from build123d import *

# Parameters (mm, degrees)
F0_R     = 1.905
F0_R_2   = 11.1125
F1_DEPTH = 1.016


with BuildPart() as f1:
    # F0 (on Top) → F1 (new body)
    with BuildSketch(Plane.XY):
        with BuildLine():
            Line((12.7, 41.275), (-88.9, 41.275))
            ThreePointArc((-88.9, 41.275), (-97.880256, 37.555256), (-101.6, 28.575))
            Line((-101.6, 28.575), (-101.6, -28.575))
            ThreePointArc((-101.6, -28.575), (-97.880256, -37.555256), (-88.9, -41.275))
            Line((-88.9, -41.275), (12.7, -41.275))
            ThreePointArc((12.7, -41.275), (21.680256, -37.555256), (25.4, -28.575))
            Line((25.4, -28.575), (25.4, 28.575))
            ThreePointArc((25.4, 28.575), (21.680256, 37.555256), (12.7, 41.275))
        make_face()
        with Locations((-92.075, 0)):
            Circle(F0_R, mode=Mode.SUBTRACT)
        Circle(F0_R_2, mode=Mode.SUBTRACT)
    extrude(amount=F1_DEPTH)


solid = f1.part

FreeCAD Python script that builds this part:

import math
import FreeCAD as App
import Part
import Sketcher

V = App.Vector
Q = App.Units.Quantity

doc = App.newDocument("Part")
body = doc.addObject("PartDesign::Body", "Body")

# Sketch on XY plane
sketch1 = body.newObject("Sketcher::SketchObject", "Sketch")
sketch1.AttachmentSupport = (doc.getObject("XY_Plane"), [""])
sketch1.MapMode = "FlatFace"
sketch1.addGeometry(Part.LineSegment(V(12.7, 41.275, 0), V(-88.9, 41.275, 0)), False)
sketch1.addGeometry(Part.ArcOfCircle(Part.Circle(V(-88.9, 28.575, 0), V(0, 0, 1), 12.7), math.radians(90.000002), math.radians(179.999998)), False)
sketch1.addGeometry(Part.LineSegment(V(-101.6, 28.575, 0), V(-101.6, -28.575, 0)), False)
sketch1.addGeometry(Part.ArcOfCircle(Part.Circle(V(-88.9, -28.575, 0), V(0, 0, 1), 12.7), math.radians(-179.999998), math.radians(-90.000002)), False)
sketch1.addGeometry(Part.LineSegment(V(-88.9, -41.275, 0), V(12.7, -41.275, 0)), False)
sketch1.addGeometry(Part.ArcOfCircle(Part.Circle(V(12.7, -28.575, 0), V(0, 0, 1), 12.7), math.radians(-89.999998), math.radians(-0.000002)), False)
sketch1.addGeometry(Part.LineSegment(V(25.4, -28.575, 0), V(25.4, 28.575, 0)), False)
sketch1.addGeometry(Part.ArcOfCircle(Part.Circle(V(12.7, 28.575, 0), V(0, 0, 1), 12.7), math.radians(0.000002), math.radians(89.999998)), False)
sketch1.addGeometry(Part.Circle(V(-92.075, 0, 0), V(0, 0, 1), 1.905), False)
sketch1.addGeometry(Part.Circle(V(0, 0, 0), V(0, 0, 1), 11.1125), False)
sketch1.addConstraint(Sketcher.Constraint("Tangent", 0, 2, 1, 1))
sketch1.addConstraint(Sketcher.Constraint("Tangent", 1, 2, 2, 1))
sketch1.addConstraint(Sketcher.Constraint("Tangent", 2, 2, 3, 1))
sketch1.addConstraint(Sketcher.Constraint("Tangent", 3, 2, 4, 1))
sketch1.addConstraint(Sketcher.Constraint("Tangent", 4, 2, 5, 1))
sketch1.addConstraint(Sketcher.Constraint("Tangent", 5, 2, 6, 1))
sketch1.addConstraint(Sketcher.Constraint("Tangent", 6, 2, 7, 1))
sketch1.addConstraint(Sketcher.Constraint("Tangent", 7, 2, 0, 1))
sketch1.addConstraint(Sketcher.Constraint("Horizontal", 0))
sketch1.addConstraint(Sketcher.Constraint("Vertical", 2))
sketch1.addConstraint(Sketcher.Constraint("Horizontal", 4))
sketch1.addConstraint(Sketcher.Constraint("Vertical", 6))
sketch1.addConstraint(Sketcher.Constraint("Coincident", 9, 3, -1, 1))
sketch1.addConstraint(Sketcher.Constraint("Equal", 1, 3))
sketch1.addConstraint(Sketcher.Constraint("Equal", 3, 5))
sketch1.addConstraint(Sketcher.Constraint("Equal", 5, 7))
sketch1.addConstraint(Sketcher.Constraint("PointOnObject", 8, 3, -1))
sketch1.addConstraint(Sketcher.Constraint("Radius", 1, Q("0.5 in")))
sketch1.addConstraint(Sketcher.Constraint("Diameter", 8, Q("0.15 in")))
sketch1.addConstraint(Sketcher.Constraint("DistanceX", 0, 2, 0, 1, Q("4 in")))
sketch1.addConstraint(Sketcher.Constraint("Diameter", 9, Q("0.875 in")))
sketch1.addConstraint(Sketcher.Constraint("DistanceX", 1, 2, -1, 1, Q("4 in")))
sketch1.addConstraint(Sketcher.Constraint("DistanceY", 2, 2, 2, 1, Q("2.25 in")))
sketch1.addConstraint(Sketcher.Constraint("DistanceY", -1, 1, 1, 3, Q("1.125 in")))
sketch1.addConstraint(Sketcher.Constraint("DistanceX", 8, 3, -1, 1, Q("3.625 in")))
pad1 = body.newObject("PartDesign::Pad", "Pad")
pad1.Profile = sketch1
pad1.Length = Q("0.04 in")

doc.recompute()
